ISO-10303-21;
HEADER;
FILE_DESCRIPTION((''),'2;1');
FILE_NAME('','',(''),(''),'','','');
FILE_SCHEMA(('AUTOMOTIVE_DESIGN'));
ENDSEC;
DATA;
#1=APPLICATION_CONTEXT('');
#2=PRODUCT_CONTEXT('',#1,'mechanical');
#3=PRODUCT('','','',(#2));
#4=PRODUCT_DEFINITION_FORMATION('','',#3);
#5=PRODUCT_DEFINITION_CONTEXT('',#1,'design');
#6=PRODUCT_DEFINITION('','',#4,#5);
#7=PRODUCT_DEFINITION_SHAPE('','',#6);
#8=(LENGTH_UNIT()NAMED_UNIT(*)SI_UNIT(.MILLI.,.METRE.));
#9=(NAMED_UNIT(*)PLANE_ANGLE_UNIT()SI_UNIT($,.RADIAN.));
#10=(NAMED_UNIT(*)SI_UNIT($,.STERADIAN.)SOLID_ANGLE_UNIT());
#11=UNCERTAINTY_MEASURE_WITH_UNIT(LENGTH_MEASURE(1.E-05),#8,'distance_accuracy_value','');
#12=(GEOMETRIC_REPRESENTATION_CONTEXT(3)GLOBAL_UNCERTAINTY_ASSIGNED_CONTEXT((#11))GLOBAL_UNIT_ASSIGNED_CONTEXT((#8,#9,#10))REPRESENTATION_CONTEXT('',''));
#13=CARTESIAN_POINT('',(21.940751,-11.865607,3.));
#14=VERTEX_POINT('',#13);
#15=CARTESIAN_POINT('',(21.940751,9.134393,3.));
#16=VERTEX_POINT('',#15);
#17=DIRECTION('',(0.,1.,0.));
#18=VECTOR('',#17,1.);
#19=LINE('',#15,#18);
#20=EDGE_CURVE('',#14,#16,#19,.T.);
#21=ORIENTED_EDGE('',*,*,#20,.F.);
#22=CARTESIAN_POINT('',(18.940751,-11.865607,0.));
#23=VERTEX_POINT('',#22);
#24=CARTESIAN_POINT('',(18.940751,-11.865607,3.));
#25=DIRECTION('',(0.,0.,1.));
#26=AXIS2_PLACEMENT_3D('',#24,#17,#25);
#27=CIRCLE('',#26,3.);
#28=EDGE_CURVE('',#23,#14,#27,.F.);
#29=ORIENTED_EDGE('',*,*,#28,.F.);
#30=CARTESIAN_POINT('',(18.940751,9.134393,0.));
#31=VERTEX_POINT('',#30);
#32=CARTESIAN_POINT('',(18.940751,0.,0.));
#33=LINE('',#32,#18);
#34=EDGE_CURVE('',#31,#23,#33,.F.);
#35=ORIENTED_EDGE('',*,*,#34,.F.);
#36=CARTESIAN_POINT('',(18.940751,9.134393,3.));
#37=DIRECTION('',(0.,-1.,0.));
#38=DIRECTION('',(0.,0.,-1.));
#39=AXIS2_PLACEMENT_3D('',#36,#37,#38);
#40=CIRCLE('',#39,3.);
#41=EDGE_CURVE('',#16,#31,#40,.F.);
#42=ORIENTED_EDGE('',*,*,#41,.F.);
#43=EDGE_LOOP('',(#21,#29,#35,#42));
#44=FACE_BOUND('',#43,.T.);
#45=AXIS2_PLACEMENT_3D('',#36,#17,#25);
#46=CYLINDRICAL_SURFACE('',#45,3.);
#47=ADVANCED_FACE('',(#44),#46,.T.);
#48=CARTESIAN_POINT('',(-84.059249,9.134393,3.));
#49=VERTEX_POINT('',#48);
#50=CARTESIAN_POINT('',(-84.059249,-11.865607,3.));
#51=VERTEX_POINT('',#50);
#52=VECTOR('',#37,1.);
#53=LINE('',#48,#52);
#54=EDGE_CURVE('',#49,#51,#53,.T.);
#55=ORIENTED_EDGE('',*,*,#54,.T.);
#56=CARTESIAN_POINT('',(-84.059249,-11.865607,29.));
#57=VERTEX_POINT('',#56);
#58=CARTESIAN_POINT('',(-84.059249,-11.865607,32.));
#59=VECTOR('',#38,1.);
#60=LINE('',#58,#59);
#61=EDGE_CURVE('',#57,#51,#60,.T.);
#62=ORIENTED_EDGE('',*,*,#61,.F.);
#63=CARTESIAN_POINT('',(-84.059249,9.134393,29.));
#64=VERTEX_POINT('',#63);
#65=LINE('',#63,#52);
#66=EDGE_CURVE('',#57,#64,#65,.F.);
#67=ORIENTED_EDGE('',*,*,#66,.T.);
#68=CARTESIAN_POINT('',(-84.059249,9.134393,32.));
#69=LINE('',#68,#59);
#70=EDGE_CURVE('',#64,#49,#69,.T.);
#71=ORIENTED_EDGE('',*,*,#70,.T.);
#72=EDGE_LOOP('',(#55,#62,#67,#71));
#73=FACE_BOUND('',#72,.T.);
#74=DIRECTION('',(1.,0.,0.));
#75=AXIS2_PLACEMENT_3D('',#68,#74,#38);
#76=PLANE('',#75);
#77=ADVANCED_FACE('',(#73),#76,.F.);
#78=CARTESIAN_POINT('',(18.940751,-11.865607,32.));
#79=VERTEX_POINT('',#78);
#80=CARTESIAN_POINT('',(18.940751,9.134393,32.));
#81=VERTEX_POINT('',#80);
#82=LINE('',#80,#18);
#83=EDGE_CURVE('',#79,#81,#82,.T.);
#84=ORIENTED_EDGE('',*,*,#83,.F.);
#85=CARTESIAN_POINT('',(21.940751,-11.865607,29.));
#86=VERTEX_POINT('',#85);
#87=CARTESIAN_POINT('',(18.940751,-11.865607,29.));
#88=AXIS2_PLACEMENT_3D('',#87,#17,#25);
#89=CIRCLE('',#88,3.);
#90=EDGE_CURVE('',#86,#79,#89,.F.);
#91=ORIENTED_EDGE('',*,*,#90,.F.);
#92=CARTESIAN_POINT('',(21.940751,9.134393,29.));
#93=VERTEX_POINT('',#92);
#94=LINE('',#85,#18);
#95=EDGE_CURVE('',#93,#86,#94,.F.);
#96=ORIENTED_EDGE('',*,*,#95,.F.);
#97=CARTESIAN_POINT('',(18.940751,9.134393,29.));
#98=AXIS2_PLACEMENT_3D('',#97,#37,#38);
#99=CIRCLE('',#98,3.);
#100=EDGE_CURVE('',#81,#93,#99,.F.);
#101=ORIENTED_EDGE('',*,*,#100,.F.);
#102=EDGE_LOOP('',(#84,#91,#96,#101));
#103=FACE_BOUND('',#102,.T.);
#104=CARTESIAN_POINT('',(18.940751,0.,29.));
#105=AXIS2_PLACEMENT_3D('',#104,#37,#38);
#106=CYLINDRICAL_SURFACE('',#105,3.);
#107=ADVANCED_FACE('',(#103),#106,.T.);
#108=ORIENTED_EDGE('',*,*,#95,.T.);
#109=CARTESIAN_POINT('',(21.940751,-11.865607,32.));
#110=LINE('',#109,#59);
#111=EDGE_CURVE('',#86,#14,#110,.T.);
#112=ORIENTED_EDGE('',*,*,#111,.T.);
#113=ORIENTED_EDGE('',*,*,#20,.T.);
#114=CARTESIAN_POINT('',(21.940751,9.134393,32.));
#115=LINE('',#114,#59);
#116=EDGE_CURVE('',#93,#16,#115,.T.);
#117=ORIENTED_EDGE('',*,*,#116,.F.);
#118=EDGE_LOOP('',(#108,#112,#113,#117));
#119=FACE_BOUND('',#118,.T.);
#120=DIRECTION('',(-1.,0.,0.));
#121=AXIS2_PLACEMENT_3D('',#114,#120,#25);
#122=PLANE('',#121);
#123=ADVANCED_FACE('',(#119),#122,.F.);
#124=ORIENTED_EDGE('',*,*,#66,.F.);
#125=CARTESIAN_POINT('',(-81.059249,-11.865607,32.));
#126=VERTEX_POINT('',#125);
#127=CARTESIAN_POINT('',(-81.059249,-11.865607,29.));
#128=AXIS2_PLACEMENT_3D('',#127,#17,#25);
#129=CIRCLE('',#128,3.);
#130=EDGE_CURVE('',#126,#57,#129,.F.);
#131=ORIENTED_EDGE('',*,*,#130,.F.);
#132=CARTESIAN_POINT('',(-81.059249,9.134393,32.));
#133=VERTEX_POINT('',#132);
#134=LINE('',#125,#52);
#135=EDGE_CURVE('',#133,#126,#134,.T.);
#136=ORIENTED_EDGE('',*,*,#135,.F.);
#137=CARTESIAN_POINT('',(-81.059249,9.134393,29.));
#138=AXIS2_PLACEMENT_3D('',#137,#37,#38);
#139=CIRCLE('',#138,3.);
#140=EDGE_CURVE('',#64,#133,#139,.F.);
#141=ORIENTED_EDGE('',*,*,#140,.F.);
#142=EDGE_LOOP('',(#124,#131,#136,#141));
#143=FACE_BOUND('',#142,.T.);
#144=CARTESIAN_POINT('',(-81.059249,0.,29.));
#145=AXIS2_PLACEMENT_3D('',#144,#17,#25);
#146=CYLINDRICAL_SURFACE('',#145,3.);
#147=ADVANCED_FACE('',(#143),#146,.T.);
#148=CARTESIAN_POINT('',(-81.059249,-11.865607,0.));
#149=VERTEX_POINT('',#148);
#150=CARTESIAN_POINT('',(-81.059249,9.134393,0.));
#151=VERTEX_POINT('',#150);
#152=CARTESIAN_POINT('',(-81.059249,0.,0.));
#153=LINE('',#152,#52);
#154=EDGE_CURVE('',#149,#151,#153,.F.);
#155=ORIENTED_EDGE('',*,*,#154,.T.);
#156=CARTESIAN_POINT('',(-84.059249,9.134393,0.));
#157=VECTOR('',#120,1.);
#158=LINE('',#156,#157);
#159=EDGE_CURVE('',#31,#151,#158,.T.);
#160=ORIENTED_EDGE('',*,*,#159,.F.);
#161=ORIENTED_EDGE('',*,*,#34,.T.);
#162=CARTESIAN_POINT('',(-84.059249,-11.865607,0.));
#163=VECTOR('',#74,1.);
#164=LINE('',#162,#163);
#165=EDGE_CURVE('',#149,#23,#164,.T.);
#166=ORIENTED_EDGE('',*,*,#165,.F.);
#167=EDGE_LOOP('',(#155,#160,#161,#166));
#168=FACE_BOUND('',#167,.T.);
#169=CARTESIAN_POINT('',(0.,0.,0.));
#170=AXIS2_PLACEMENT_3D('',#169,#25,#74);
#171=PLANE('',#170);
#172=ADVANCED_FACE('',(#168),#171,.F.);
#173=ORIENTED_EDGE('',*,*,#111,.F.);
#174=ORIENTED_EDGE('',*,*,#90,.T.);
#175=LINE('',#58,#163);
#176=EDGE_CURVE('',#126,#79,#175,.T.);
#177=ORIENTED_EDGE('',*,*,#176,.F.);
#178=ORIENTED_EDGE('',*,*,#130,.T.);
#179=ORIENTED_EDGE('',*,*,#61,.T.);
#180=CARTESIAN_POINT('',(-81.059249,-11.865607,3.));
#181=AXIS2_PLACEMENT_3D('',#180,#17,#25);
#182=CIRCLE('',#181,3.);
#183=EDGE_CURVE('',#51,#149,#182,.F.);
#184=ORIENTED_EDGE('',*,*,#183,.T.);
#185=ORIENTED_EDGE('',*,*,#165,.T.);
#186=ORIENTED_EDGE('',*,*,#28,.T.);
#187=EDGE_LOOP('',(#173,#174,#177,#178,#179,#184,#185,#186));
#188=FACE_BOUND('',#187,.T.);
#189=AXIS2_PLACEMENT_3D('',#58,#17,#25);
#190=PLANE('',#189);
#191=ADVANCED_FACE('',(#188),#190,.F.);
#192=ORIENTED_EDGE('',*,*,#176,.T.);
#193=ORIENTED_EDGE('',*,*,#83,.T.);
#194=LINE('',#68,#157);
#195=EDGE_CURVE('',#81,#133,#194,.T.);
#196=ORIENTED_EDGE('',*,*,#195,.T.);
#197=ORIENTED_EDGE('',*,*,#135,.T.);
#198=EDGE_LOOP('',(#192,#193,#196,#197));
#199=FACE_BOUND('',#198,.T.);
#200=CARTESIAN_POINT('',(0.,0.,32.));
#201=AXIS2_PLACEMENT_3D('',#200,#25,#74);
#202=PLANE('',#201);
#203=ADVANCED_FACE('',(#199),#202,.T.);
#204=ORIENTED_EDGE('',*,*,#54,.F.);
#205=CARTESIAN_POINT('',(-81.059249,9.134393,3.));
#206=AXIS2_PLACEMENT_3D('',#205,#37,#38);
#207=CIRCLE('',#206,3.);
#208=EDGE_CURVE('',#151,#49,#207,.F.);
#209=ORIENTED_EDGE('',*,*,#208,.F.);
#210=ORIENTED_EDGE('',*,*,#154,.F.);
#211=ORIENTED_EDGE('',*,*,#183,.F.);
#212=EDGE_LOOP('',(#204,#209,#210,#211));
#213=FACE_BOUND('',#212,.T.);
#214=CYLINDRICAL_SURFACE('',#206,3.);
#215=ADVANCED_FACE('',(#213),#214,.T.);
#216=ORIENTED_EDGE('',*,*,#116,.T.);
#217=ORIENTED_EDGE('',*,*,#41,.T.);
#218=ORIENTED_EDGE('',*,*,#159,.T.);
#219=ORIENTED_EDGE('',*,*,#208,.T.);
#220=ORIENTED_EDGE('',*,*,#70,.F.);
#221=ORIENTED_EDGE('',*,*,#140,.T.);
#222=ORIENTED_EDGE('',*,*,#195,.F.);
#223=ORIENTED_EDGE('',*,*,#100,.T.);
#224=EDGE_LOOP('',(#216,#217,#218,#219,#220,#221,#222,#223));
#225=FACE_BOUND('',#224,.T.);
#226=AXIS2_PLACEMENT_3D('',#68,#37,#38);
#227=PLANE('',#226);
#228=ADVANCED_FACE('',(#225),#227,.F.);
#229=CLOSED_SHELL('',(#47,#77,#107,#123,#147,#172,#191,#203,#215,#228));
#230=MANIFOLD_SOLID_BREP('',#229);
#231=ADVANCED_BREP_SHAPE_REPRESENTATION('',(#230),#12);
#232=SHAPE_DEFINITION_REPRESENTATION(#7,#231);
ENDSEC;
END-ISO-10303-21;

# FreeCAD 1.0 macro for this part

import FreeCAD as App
import Part
import Sketcher

V = App.Vector
Q = App.Units.Quantity


def edges_at(feature, points):
    """Names of the edges that pass closest to the given points."""
    edges = feature.Shape.Edges
    near = lambda p: min(range(len(edges)), key=lambda i: edges[i].distToShape(Part.Vertex(*p))[0])
    return sorted({f"Edge{near(p) + 1}" for p in points})


def add_polygon(sketch, points):
    """Adds a closed chain of lines whose ends are joined by coincident constraints."""
    first, n = sketch.GeometryCount, len(points)
    for a, b in zip(points, points[1:] + points[:1]):
        sketch.addGeometry(Part.LineSegment(App.Vector(*a, 0), App.Vector(*b, 0)), False)
    for i in range(n):
        sketch.addConstraint(Sketcher.Constraint("Coincident", first + i, 2, first + (i + 1) % n, 1))

doc = App.newDocument("Part")
body = doc.addObject("PartDesign::Body", "Body")

# Sketch on XY plane
sketch1 = body.newObject("Sketcher::SketchObject", "Sketch")
sketch1.AttachmentSupport = (doc.getObject("XY_Plane"), [""])
sketch1.MapMode = "FlatFace"
add_polygon(sketch1, [(-84, 9), (-84, -12), (22, -12), (22, 9)])  # lines 0-3
sketch1.addConstraint(Sketcher.Constraint("Vertical", 0))
sketch1.addConstraint(Sketcher.Constraint("Horizontal", 1))
sketch1.addConstraint(Sketcher.Constraint("Vertical", 2))
sketch1.addConstraint(Sketcher.Constraint("Horizontal", 3))
sketch1.addConstraint(Sketcher.Constraint("DistanceX", 1, 1, 1, 2, Q("106 mm")))
sketch1.addConstraint(Sketcher.Constraint("DistanceY", 0, 2, 0, 1, Q("21 mm")))
sketch1.addConstraint(Sketcher.Constraint("DistanceX", 0, 2, -1, 1, Q("84.059249 mm")))
sketch1.addConstraint(Sketcher.Constraint("DistanceY", 0, 2, -1, 1, Q("11.865607 mm")))
pad1 = body.newObject("PartDesign::Pad", "Pad")
pad1.Profile = sketch1
pad1.Length = 32
doc.recompute()

fillet = body.newObject("PartDesign::Fillet", "Fillet")
fillet.Base = (pad1, edges_at(pad1, [
    (21.941, -1.366, 32),
    (-84.059, -1.366, 32),
    (21.941, -1.366, 0),
    (-84.059, -1.366, 0),
]))
fillet.Radius = 3

doc.recompute()
